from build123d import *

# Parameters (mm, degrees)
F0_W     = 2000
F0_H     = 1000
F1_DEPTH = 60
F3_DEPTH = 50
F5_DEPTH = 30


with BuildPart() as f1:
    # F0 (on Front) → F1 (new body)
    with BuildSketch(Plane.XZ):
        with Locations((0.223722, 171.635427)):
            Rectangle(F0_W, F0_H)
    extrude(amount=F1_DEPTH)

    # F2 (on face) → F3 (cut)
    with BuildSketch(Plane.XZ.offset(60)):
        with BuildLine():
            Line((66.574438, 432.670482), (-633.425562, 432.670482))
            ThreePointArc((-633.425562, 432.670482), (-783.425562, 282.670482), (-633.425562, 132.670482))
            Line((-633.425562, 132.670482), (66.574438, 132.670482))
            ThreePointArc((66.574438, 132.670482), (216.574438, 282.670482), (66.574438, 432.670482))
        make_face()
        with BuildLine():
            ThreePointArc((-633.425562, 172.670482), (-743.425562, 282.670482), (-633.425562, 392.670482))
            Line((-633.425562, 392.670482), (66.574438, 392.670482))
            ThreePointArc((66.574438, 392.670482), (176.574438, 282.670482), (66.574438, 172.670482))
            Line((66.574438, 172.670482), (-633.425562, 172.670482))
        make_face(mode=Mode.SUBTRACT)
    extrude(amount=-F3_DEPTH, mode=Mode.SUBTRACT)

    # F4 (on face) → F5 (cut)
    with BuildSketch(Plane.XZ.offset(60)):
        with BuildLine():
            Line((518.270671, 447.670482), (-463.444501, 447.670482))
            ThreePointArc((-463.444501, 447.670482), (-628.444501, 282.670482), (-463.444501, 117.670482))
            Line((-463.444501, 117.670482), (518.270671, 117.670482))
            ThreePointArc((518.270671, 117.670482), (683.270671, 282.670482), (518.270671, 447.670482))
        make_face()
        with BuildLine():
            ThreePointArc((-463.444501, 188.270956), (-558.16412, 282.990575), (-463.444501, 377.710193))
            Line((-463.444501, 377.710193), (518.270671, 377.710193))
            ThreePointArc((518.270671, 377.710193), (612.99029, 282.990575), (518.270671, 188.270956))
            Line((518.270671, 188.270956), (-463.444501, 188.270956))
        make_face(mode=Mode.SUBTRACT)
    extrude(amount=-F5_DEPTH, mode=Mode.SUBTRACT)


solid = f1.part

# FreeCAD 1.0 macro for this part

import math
import FreeCAD as App
import Part
import Sketcher

V = App.Vector
Q = App.Units.Quantity

doc = App.newDocument("Part")
body = doc.addObject("PartDesign::Body", "Body")

# Sketch on XZ plane
sketch1 = doc.addObject("Sketcher::SketchObject", "Sketch")
body.addObject(sketch1)
sketch1.AttachmentSupport = (doc.XZ_Plane, [""])
sketch1.MapMode = "FlatFace"
sketch1.addGeometry(Part.LineSegment(V(-1000, 672, 0), V(-1000, -328, 0)), False)
sketch1.addGeometry(Part.LineSegment(V(-1000, -328, 0), V(1000, -328, 0)), False)
sketch1.addGeometry(Part.LineSegment(V(1000, -328, 0), V(1000, 672, 0)), False)
sketch1.addGeometry(Part.LineSegment(V(1000, 672, 0), V(-1000, 672, 0)), False)
sketch1.addConstraint(Sketcher.Constraint("Coincident", 0, 2, 1, 1))
sketch1.addConstraint(Sketcher.Constraint("Coincident", 1, 2, 2, 1))
sketch1.addConstraint(Sketcher.Constraint("Coincident", 2, 2, 3, 1))
sketch1.addConstraint(Sketcher.Constraint("Coincident", 3, 2, 0, 1))
sketch1.addConstraint(Sketcher.Constraint("Vertical", 0))
sketch1.addConstraint(Sketcher.Constraint("Horizontal", 1))
sketch1.addConstraint(Sketcher.Constraint("Vertical", 2))
sketch1.addConstraint(Sketcher.Constraint("Horizontal", 3))
sketch1.addConstraint(Sketcher.Constraint("DistanceX", 1, 1, 1, 2, Q("2000 mm")))
sketch1.addConstraint(Sketcher.Constraint("DistanceY", 0, 2, 0, 1, Q("1000 mm")))
sketch1.addConstraint(Sketcher.Constraint("DistanceX", 0, 2, -1, 1, Q("999.776278 mm")))
sketch1.addConstraint(Sketcher.Constraint("DistanceY", 0, 2, -1, 1, Q("328.364573 mm")))
pad1 = doc.addObject("PartDesign::Pad", "Pad")
body.addObject(pad1)
pad1.Profile = sketch1
pad1.Length = 60

# Sketch on XZ plane
sketch2 = doc.addObject("Sketcher::SketchObject", "Sketch001")
body.addObject(sketch2)
sketch2.AttachmentSupport = (doc.XZ_Plane, [""])
sketch2.MapMode = "FlatFace"
sketch2.AttachmentOffset = App.Placement(V(0, 0, 60), App.Rotation())
sketch2.addGeometry(Part.LineSegment(V(67, 433, 0), V(-633, 433, 0)), False)
sketch2.addGeometry(Part.ArcOfCircle(Part.Circle(V(-633, 283, 0), V(0, 0, 1), 150), math.radians(90), math.radians(270)), False)
sketch2.addGeometry(Part.LineSegment(V(-633, 133, 0), V(67, 133, 0)), False)
sketch2.addGeometry(Part.ArcOfCircle(Part.Circle(V(67, 283, 0), V(0, 0, 1), 150), math.radians(-90), math.radians(90)), False)
sketch2.addGeometry(Part.LineSegment(V(67, 173, 0), V(-633, 173, 0)), False)
sketch2.addGeometry(Part.ArcOfCircle(Part.Circle(V(-633, 283, 0), V(0, 0, 1), 110), math.radians(90), math.radians(270)), False)
sketch2.addGeometry(Part.LineSegment(V(-633, 393, 0), V(67, 393, 0)), False)
sketch2.addGeometry(Part.ArcOfCircle(Part.Circle(V(67, 283, 0), V(0, 0, 1), 110), math.radians(-90), math.radians(90)), False)
sketch2.addConstraint(Sketcher.Constraint("Tangent", 0, 2, 1, 1))
sketch2.addConstraint(Sketcher.Constraint("Tangent", 1, 2, 2, 1))
sketch2.addConstraint(Sketcher.Constraint("Tangent", 2, 2, 3, 1))
sketch2.addConstraint(Sketcher.Constraint("Tangent", 3, 2, 0, 1))
sketch2.addConstraint(Sketcher.Constraint("Tangent", 4, 2, 5, 2))
sketch2.addConstraint(Sketcher.Constraint("Tangent", 5, 1, 6, 1))
sketch2.addConstraint(Sketcher.Constraint("Tangent", 6, 2, 7, 2))
sketch2.addConstraint(Sketcher.Constraint("Tangent", 7, 1, 4, 1))
sketch2.addConstraint(Sketcher.Constraint("Horizontal", 0))
sketch2.addConstraint(Sketcher.Constraint("Horizontal", 2))
sketch2.addConstraint(Sketcher.Constraint("Horizontal", 4))
sketch2.addConstraint(Sketcher.Constraint("Horizontal", 6))
sketch2.addConstraint(Sketcher.Constraint("Coincident", 5, 3, 1, 3))
sketch2.addConstraint(Sketcher.Constraint("Vertical", 7, 3, 2, 2))
sketch2.addConstraint(Sketcher.Constraint("Radius", 1, Q("150 mm")))
sketch2.addConstraint(Sketcher.Constraint("Radius", 5, Q("110 mm")))
sketch2.addConstraint(Sketcher.Constraint("DistanceX", 0, 2, 0, 1, Q("700 mm")))
sketch2.addConstraint(Sketcher.Constraint("DistanceX", 1, 3, -1, 1, Q("633.425562 mm")))
sketch2.addConstraint(Sketcher.Constraint("DistanceY", -1, 1, 1, 3, Q("282.670482 mm")))
pocket1 = doc.addObject("PartDesign::Pocket", "Pocket")
body.addObject(pocket1)
pocket1.Profile = sketch2
pocket1.Length = 50

# Sketch on XZ plane
sketch3 = doc.addObject("Sketcher::SketchObject", "Sketch002")
body.addObject(sketch3)
sketch3.AttachmentSupport = (doc.XZ_Plane, [""])
sketch3.MapMode = "FlatFace"
sketch3.AttachmentOffset = App.Placement(V(0, 0, 60), App.Rotation())
sketch3.addGeometry(Part.LineSegment(V(518, 448, 0), V(-463, 448, 0)), False)
sketch3.addGeometry(Part.ArcOfCircle(Part.Circle(V(-463, 283, 0), V(0, 0, 1), 165), math.radians(90), math.radians(270)), False)
sketch3.addGeometry(Part.LineSegment(V(-463, 118, 0), V(518, 118, 0)), False)
sketch3.addGeometry(Part.ArcOfCircle(Part.Circle(V(518, 283, 0), V(0, 0, 1), 165), math.radians(-90), math.radians(90)), False)
sketch3.addGeometry(Part.LineSegment(V(518, 188, 0), V(-463, 188, 0)), False)
sketch3.addGeometry(Part.ArcOfCircle(Part.Circle(V(-463, 283, 0), V(0, 0, 1), 95), math.radians(90), math.radians(270)), False)
sketch3.addGeometry(Part.LineSegment(V(-463, 378, 0), V(518, 378, 0)), False)
sketch3.addGeometry(Part.ArcOfCircle(Part.Circle(V(518, 283, 0), V(0, 0, 1), 95), math.radians(-90), math.radians(90)), False)
sketch3.addConstraint(Sketcher.Constraint("Tangent", 0, 2, 1, 1))
sketch3.addConstraint(Sketcher.Constraint("Tangent", 1, 2, 2, 1))
sketch3.addConstraint(Sketcher.Constraint("Tangent", 2, 2, 3, 1))
sketch3.addConstraint(Sketcher.Constraint("Tangent", 3, 2, 0, 1))
sketch3.addConstraint(Sketcher.Constraint("Tangent", 4, 2, 5, 2))
sketch3.addConstraint(Sketcher.Constraint("Tangent", 5, 1, 6, 1))
sketch3.addConstraint(Sketcher.Constraint("Tangent", 6, 2, 7, 2))
sketch3.addConstraint(Sketcher.Constraint("Tangent", 7, 1, 4, 1))
sketch3.addConstraint(Sketcher.Constraint("Horizontal", 0))
sketch3.addConstraint(Sketcher.Constraint("Horizontal", 2))
sketch3.addConstraint(Sketcher.Constraint("Horizontal", 4))
sketch3.addConstraint(Sketcher.Constraint("Horizontal", 6))
sketch3.addConstraint(Sketcher.Constraint("Vertical", 1, 3, 5, 3))
sketch3.addConstraint(Sketcher.Constraint("Vertical", 3, 3, 7, 3))
sketch3.addConstraint(Sketcher.Constraint("Radius", 1, Q("165 mm")))
sketch3.addConstraint(Sketcher.Constraint("Radius", 5, Q("94.719618 mm")))
sketch3.addConstraint(Sketcher.Constraint("DistanceX", 0, 2, 0, 1, Q("981.715172 mm")))
sketch3.addConstraint(Sketcher.Constraint("DistanceX", 1, 3, -1, 1, Q("463.444501 mm")))
sketch3.addConstraint(Sketcher.Constraint("DistanceY", -1, 1, 1, 3, Q("282.670482 mm")))
sketch3.addConstraint(Sketcher.Constraint("DistanceY", 5, 1, 0, 2, Q("69.960289 mm")))
pocket2 = doc.addObject("PartDesign::Pocket", "Pocket001")
body.addObject(pocket2)
pocket2.Profile = sketch3
pocket2.Length = 30

doc.recompute()
